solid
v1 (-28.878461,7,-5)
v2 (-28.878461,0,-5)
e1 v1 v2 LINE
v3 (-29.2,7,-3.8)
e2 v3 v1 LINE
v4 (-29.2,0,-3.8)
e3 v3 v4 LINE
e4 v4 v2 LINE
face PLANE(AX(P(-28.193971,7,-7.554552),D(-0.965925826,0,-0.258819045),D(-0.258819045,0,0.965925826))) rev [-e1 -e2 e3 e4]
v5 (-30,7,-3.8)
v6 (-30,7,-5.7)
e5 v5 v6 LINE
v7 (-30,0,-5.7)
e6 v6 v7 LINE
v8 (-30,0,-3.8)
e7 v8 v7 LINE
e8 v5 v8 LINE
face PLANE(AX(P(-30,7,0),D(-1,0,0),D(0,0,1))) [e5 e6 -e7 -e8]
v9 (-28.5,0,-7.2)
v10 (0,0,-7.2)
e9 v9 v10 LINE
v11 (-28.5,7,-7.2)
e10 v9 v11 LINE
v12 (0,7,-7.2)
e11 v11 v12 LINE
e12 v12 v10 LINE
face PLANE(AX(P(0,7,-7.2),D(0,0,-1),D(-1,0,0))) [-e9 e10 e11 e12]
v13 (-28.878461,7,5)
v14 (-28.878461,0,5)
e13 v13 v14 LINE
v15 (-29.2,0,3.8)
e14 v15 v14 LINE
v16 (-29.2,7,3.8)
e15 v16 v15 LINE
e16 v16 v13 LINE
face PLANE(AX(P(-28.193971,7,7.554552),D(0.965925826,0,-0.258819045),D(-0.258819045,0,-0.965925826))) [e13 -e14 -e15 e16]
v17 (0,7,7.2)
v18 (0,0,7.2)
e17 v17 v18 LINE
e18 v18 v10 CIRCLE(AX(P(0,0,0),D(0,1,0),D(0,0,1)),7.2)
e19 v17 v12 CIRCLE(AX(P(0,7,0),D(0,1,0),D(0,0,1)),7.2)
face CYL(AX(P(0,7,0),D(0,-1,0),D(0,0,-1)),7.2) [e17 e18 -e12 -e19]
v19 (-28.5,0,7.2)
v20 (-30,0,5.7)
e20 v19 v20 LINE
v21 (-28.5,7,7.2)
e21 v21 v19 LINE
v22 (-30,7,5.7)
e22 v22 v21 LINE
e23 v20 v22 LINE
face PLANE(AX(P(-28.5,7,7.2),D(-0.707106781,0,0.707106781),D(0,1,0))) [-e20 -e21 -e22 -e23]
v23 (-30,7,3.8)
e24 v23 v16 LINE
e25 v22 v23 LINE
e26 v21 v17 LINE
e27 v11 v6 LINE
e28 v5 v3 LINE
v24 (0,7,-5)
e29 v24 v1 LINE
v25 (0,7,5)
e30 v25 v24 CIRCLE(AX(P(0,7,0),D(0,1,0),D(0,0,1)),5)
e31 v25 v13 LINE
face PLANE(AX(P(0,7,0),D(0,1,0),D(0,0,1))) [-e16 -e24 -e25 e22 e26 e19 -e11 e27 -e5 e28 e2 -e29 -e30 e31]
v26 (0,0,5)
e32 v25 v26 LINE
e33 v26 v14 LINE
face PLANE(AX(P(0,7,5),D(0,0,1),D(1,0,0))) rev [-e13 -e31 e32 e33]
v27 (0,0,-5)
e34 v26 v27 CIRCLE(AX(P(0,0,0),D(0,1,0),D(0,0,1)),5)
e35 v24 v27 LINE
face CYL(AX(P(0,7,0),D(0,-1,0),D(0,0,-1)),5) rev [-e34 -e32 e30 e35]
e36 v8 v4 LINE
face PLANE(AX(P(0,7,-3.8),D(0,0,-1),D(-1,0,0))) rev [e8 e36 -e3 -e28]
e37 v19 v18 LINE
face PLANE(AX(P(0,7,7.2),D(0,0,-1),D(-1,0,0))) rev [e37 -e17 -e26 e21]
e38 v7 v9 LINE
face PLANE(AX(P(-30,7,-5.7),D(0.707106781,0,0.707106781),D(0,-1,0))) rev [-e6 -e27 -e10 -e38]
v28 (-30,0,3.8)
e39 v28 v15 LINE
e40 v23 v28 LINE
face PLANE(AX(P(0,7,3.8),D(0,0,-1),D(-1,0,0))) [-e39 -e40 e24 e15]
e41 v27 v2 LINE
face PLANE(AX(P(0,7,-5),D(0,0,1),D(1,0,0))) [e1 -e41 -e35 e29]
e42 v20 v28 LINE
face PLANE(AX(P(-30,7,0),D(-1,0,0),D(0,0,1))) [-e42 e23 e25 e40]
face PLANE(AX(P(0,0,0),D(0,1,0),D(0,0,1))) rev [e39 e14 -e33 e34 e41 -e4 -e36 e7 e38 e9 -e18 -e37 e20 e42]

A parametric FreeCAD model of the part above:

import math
import FreeCAD as App
import Part
import Sketcher
Q = App.Units.Quantity


def edges_at(feature, points):
    """Names of the edges that pass closest to the given points."""
    edges = feature.Shape.Edges
    near = lambda p: min(range(len(edges)), key=lambda i: edges[i].distToShape(Part.Vertex(*p))[0])
    return sorted({f"Edge{near(p) + 1}" for p in points})

doc = App.newDocument("Part")
body = doc.addObject("PartDesign::Body", "Body")

sketch1 = doc.addObject("Sketcher::SketchObject", "Sketch")
body.addObject(sketch1)
sketch1.AttachmentSupport = (doc.XZ_Plane, [""])
sketch1.MapMode = "FlatFace"
sketch1.addGeometry(Part.LineSegment(App.Vector(-29.2, -3.8, 0), App.Vector(-28.9, -5, 0)), False)
sketch1.addGeometry(Part.LineSegment(App.Vector(-28.9, -5, 0), App.Vector(0, -5, 0)), False)
sketch1.addGeometry(Part.ArcOfCircle(Part.Circle(App.Vector(0, 0, 0), App.Vector(0, 0, 1), 5), math.radians(-90), math.radians(90)), False)
sketch1.addGeometry(Part.LineSegment(App.Vector(0, 5, 0), App.Vector(-28.9, 5, 0)), False)
sketch1.addGeometry(Part.LineSegment(App.Vector(-28.9, 5, 0), App.Vector(-29.2, 3.8, 0)), False)
sketch1.addGeometry(Part.LineSegment(App.Vector(-29.2, 3.8, 0), App.Vector(-30, 3.8, 0)), False)
sketch1.addGeometry(Part.LineSegment(App.Vector(-30, 3.8, 0), App.Vector(-30, 7.2, 0)), False)
sketch1.addGeometry(Part.LineSegment(App.Vector(-30, 7.2, 0), App.Vector(0, 7.2, 0)), False)
sketch1.addGeometry(Part.ArcOfCircle(Part.Circle(App.Vector(0, 0, 0), App.Vector(0, 0, 1), 7.2), math.radians(-90), math.radians(90)), False)
sketch1.addGeometry(Part.LineSegment(App.Vector(0, -7.2, 0), App.Vector(-30, -7.2, 0)), False)
sketch1.addGeometry(Part.LineSegment(App.Vector(-30, -7.2, 0), App.Vector(-30, -3.8, 0)), False)
sketch1.addGeometry(Part.LineSegment(App.Vector(-30, -3.8, 0), App.Vector(-29.2, -3.8, 0)), False)
sketch1.addConstraint(Sketcher.Constraint("Coincident", 0, 2, 1, 1))
sketch1.addConstraint(Sketcher.Constraint("Tangent", 1, 2, 2, 1))
sketch1.addConstraint(Sketcher.Constraint("Tangent", 2, 2, 3, 1))
sketch1.addConstraint(Sketcher.Constraint("Coincident", 3, 2, 4, 1))
sketch1.addConstraint(Sketcher.Constraint("Coincident", 4, 2, 5, 1))
sketch1.addConstraint(Sketcher.Constraint("Coincident", 5, 2, 6, 1))
sketch1.addConstraint(Sketcher.Constraint("Coincident", 6, 2, 7, 1))
sketch1.addConstraint(Sketcher.Constraint("Tangent", 7, 2, 8, 2))
sketch1.addConstraint(Sketcher.Constraint("Tangent", 8, 1, 9, 1))
sketch1.addConstraint(Sketcher.Constraint("Coincident", 9, 2, 10, 1))
sketch1.addConstraint(Sketcher.Constraint("Coincident", 10, 2, 11, 1))
sketch1.addConstraint(Sketcher.Constraint("Coincident", 11, 2, 0, 1))
sketch1.addConstraint(Sketcher.Constraint("Horizontal", 1))
sketch1.addConstraint(Sketcher.Constraint("Horizontal", 3))
sketch1.addConstraint(Sketcher.Constraint("Horizontal", 5))
sketch1.addConstraint(Sketcher.Constraint("Vertical", 6))
sketch1.addConstraint(Sketcher.Constraint("Horizontal", 7))
sketch1.addConstraint(Sketcher.Constraint("Horizontal", 9))
sketch1.addConstraint(Sketcher.Constraint("Vertical", 10))
sketch1.addConstraint(Sketcher.Constraint("Horizontal", 11))
sketch1.addConstraint(Sketcher.Constraint("Coincident", 2, 3, -1, 1))
sketch1.addConstraint(Sketcher.Constraint("Coincident", 8, 3, -1, 1))
sketch1.addConstraint(Sketcher.Constraint("Symmetric", 5, 2, 10, 2, -1))
sketch1.addConstraint(Sketcher.Constraint("Vertical", 0, 2, 3, 2))
sketch1.addConstraint(Sketcher.Constraint("Vertical", 4, 2, 11, 2))
sketch1.addConstraint(Sketcher.Constraint("Radius", 2, 5.0))
sketch1.addConstraint(Sketcher.Constraint("Radius", 8, 7.2))
sketch1.addConstraint(Sketcher.Constraint("DistanceX", 7, 1, 7, 2, 30.0))
sketch1.addConstraint(Sketcher.Constraint("Angle", 0, Q("-75 deg")))
sketch1.addConstraint(Sketcher.Constraint("DistanceX", 5, 2, 5, 1, 0.8))
sketch1.addConstraint(Sketcher.Constraint("DistanceY", 6, 1, 6, 2, 3.4))
pad1 = doc.addObject("PartDesign::Pad", "Pad")
body.addObject(pad1)
pad1.Profile = sketch1
pad1.Length = 7
pad1.Reversed = True
doc.recompute()

chamfer = doc.addObject("PartDesign::Chamfer", "Chamfer")
body.addObject(chamfer)
chamfer.Base = (pad1, edges_at(pad1, [(-30, 3.5, -7.2), (-30, 3.5, 7.2)]))
chamfer.Size = 1.5

doc.recompute()
